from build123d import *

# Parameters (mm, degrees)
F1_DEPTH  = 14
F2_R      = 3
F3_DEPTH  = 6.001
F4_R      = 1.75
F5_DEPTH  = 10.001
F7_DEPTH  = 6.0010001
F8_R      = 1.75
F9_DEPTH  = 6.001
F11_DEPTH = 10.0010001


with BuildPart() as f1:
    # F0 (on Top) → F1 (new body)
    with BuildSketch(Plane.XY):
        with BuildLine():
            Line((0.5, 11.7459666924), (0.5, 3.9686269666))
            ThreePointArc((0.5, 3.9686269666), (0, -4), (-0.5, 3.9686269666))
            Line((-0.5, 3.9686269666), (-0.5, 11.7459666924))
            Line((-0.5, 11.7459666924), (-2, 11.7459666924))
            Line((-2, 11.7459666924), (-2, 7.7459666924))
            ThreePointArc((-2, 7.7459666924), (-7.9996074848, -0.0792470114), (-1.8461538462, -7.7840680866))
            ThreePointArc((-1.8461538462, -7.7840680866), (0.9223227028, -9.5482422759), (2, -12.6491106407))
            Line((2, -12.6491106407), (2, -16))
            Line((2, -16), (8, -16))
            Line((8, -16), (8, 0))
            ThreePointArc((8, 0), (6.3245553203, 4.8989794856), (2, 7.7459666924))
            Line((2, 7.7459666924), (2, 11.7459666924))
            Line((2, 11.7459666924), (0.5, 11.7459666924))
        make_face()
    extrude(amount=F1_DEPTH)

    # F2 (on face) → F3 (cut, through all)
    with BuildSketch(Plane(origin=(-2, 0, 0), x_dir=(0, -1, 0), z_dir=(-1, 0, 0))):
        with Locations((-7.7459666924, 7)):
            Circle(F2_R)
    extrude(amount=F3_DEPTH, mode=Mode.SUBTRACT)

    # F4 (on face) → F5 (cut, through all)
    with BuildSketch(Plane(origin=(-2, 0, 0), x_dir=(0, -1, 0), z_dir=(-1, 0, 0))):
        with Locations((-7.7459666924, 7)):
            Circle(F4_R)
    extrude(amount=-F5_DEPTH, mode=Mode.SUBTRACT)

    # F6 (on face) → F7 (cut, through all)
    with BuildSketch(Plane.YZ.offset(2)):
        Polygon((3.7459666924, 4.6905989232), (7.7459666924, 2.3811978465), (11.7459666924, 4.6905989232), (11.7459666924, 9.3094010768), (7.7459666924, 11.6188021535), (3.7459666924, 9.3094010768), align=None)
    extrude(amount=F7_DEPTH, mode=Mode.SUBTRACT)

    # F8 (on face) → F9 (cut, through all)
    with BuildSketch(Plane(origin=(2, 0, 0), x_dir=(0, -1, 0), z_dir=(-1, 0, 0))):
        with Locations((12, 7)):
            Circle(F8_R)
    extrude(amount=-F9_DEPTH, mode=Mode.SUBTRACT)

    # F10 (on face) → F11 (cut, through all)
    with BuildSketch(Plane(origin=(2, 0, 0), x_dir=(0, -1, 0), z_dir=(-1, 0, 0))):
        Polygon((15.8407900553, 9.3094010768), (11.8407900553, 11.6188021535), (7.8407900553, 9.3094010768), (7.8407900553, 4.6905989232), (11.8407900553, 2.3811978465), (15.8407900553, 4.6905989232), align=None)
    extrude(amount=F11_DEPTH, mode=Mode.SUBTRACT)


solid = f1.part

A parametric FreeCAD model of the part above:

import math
import FreeCAD as App
import Part
import Sketcher
Q = App.Units.Quantity

doc = App.newDocument("Part")
body = doc.addObject("PartDesign::Body", "Body")

# Sketch on XY plane
sketch1 = body.newObject("Sketcher::SketchObject", "Sketch")
sketch1.AttachmentSupport = (doc.getObject("XY_Plane"), [""])
sketch1.MapMode = "FlatFace"
sketch1.addGeometry([
    Part.LineSegment(App.Vector(0.5, 11.7, 0), App.Vector(0.5, 4, 0)),  # 0
    Part.ArcOfCircle(Part.Circle(App.Vector(0, 0, 0), App.Vector(0, 0, 1), 4), math.radians(97), math.radians(443)),  # 1
    Part.LineSegment(App.Vector(-0.5, 4, 0), App.Vector(-0.5, 11.7, 0)),  # 2
    Part.LineSegment(App.Vector(-0.5, 11.7, 0), App.Vector(-2, 11.7, 0)),  # 3
    Part.LineSegment(App.Vector(-2, 11.7, 0), App.Vector(-2, 7.7, 0)),  # 4
    Part.ArcOfCircle(Part.Circle(App.Vector(0, 0, 0), App.Vector(0, 0, 1), 8), math.radians(104), math.radians(257)),  # 5
    Part.ArcOfCircle(Part.Circle(App.Vector(-3, -12.6, 0), App.Vector(0, 0, 1), 5), math.radians(0), math.radians(77)),  # 6
    Part.LineSegment(App.Vector(2, -12.6, 0), App.Vector(2, -16, 0)),  # 7
    Part.LineSegment(App.Vector(2, -16, 0), App.Vector(8, -16, 0)),  # 8
    Part.LineSegment(App.Vector(8, -16, 0), App.Vector(8, 0, 0)),  # 9
    Part.ArcOfCircle(Part.Circle(App.Vector(0, 0, 0), App.Vector(0, 0, 1), 8), math.radians(0), math.radians(76)),  # 10
    Part.LineSegment(App.Vector(2, 7.7, 0), App.Vector(2, 11.7, 0)),  # 11
    Part.LineSegment(App.Vector(2, 11.7, 0), App.Vector(0.5, 11.7, 0)),  # 12
], False)
sketch1.addConstraint([
    Sketcher.Constraint("Coincident", 0, 2, 1, 2),
    Sketcher.Constraint("Coincident", 1, 1, 2, 1),
    Sketcher.Constraint("Coincident", 2, 2, 3, 1),
    Sketcher.Constraint("Coincident", 3, 2, 4, 1),
    Sketcher.Constraint("Coincident", 4, 2, 5, 1),
    Sketcher.Constraint("Tangent", 5, 2, 6, 2),
    Sketcher.Constraint("Tangent", 6, 1, 7, 1),
    Sketcher.Constraint("Coincident", 7, 2, 8, 1),
    Sketcher.Constraint("Coincident", 8, 2, 9, 1),
    Sketcher.Constraint("Tangent", 9, 2, 10, 1),
    Sketcher.Constraint("Coincident", 10, 2, 11, 1),
    Sketcher.Constraint("Coincident", 11, 2, 12, 1),
    Sketcher.Constraint("Coincident", 12, 2, 0, 1),
    Sketcher.Constraint("Vertical", 0),
    Sketcher.Constraint("Vertical", 2),
    Sketcher.Constraint("Horizontal", 3),
    Sketcher.Constraint("Vertical", 4),
    Sketcher.Constraint("Vertical", 7),
    Sketcher.Constraint("Horizontal", 8),
    Sketcher.Constraint("Vertical", 9),
    Sketcher.Constraint("Vertical", 11),
    Sketcher.Constraint("Horizontal", 12),
    Sketcher.Constraint("Coincident", 1, 3, -1, 1),
    Sketcher.Constraint("Coincident", 5, 3, -1, 1),
    Sketcher.Constraint("Coincident", 10, 3, -1, 1),
    Sketcher.Constraint("Equal", 5, 10),
    Sketcher.Constraint("Symmetric", 3, 2, 11, 2, -2),
    Sketcher.Constraint("Horizontal", 0, 2, 1, 1),
    Sketcher.Constraint("Vertical", 7, 2, 10, 2),
    Sketcher.Constraint("Radius", 1, Q("4 mm")),
    Sketcher.Constraint("Radius", 5, Q("8 mm")),
    Sketcher.Constraint("Radius", 6, Q("5 mm")),
    Sketcher.Constraint("DistanceX", 8, 1, 8, 2, Q("6 mm")),
    Sketcher.Constraint("DistanceY", 4, 2, 4, 1, Q("4 mm")),
    Sketcher.Constraint("DistanceY", 9, 1, 9, 2, Q("16 mm")),
    Sketcher.Constraint("DistanceX", 3, 2, 3, 1, Q("1.5 mm")),
])
pad1 = body.newObject("PartDesign::Pad", "Pad")
pad1.Profile = sketch1
pad1.Length = 14

# Sketch on YZ plane
sketch2 = body.newObject("Sketcher::SketchObject", "Sketch001")
sketch2.AttachmentSupport = (doc.getObject("YZ_Plane"), [""])
sketch2.MapMode = "FlatFace"
sketch2.AttachmentOffset = App.Placement(App.Vector(0, 0, -2), App.Rotation())
sketch2.addGeometry(Part.Circle(App.Vector(7.7, 7, 0), App.Vector(0, 0, 1), 3), False)
sketch2.addConstraint([
    Sketcher.Constraint("Diameter", 0, Q("6 mm")),
    Sketcher.Constraint("DistanceY", -1, 1, 0, 3, Q("7 mm")),
    Sketcher.Constraint("DistanceX", -1, 1, 0, 3, Q("7.745967 mm")),
])
pocket1 = body.newObject("PartDesign::Pocket", "Pocket")
pocket1.Profile = sketch2
pocket1.Type = "ThroughAll"

# Sketch on YZ plane
sketch3 = body.newObject("Sketcher::SketchObject", "Sketch002")
sketch3.AttachmentSupport = (doc.getObject("YZ_Plane"), [""])
sketch3.MapMode = "FlatFace"
sketch3.AttachmentOffset = App.Placement(App.Vector(0, 0, -2), App.Rotation())
sketch3.addGeometry(Part.Circle(App.Vector(7.7, 7, 0), App.Vector(0, 0, 1), 1.8), False)
sketch3.addConstraint([
    Sketcher.Constraint("Diameter", 0, Q("3.5 mm")),
    Sketcher.Constraint("DistanceY", -1, 1, 0, 3, Q("7 mm")),
    Sketcher.Constraint("DistanceX", -1, 1, 0, 3, Q("7.745967 mm")),
])
pocket2 = body.newObject("PartDesign::Pocket", "Pocket001")
pocket2.Profile = sketch3
pocket2.Type = "ThroughAll"
pocket2.Reversed = True

# Sketch on YZ plane
sketch4 = body.newObject("Sketcher::SketchObject", "Sketch003")
sketch4.AttachmentSupport = (doc.getObject("YZ_Plane"), [""])
sketch4.MapMode = "FlatFace"
sketch4.AttachmentOffset = App.Placement(App.Vector(0, 0, 2), App.Rotation())
sketch4.addGeometry([
    Part.LineSegment(App.Vector(3.7, 4.7, 0), App.Vector(7.7, 2.4, 0)),  # 0
    Part.LineSegment(App.Vector(7.7, 2.4, 0), App.Vector(11.7, 4.7, 0)),  # 1
    Part.LineSegment(App.Vector(11.7, 4.7, 0), App.Vector(11.7, 9.3, 0)),  # 2
    Part.LineSegment(App.Vector(11.7, 9.3, 0), App.Vector(7.7, 11.6, 0)),  # 3
    Part.LineSegment(App.Vector(7.7, 11.6, 0), App.Vector(3.7, 9.3, 0)),  # 4
    Part.LineSegment(App.Vector(3.7, 9.3, 0), App.Vector(3.7, 4.7, 0)),  # 5
], False)
sketch4.addConstraint([
    Sketcher.Constraint("Coincident", 0, 2, 1, 1),
    Sketcher.Constraint("Coincident", 1, 2, 2, 1),
    Sketcher.Constraint("Coincident", 2, 2, 3, 1),
    Sketcher.Constraint("Coincident", 3, 2, 4, 1),
    Sketcher.Constraint("Coincident", 4, 2, 5, 1),
    Sketcher.Constraint("Coincident", 5, 2, 0, 1),
    Sketcher.Constraint("Vertical", 2),
    Sketcher.Constraint("Vertical", 5),
    Sketcher.Constraint("Parallel", 0, 3),
    Sketcher.Constraint("Parallel", 1, 4),
    Sketcher.Constraint("Horizontal", 2, 2, 4, 2),
    Sketcher.Constraint("Horizontal", 1, 2, 5, 2),
    Sketcher.Constraint("Vertical", 0, 2, 3, 2),
    Sketcher.Constraint("Angle", 0, Q("-30 deg")),
    Sketcher.Constraint("DistanceX", 0, 2, 1, 2, Q("4 mm")),
    Sketcher.Constraint("DistanceY", -1, 1, 1, 2, Q("4.690599 mm")),
    Sketcher.Constraint("DistanceY", -1, 1, 2, 2, Q("9.309401 mm")),
    Sketcher.Constraint("DistanceX", -1, 1, 0, 2, Q("7.745967 mm")),
])
pocket3 = body.newObject("PartDesign::Pocket", "Pocket002")
pocket3.Profile = sketch4
pocket3.Type = "ThroughAll"
pocket3.Reversed = True

# Sketch on YZ plane
sketch5 = body.newObject("Sketcher::SketchObject", "Sketch004")
sketch5.AttachmentSupport = (doc.getObject("YZ_Plane"), [""])
sketch5.MapMode = "FlatFace"
sketch5.AttachmentOffset = App.Placement(App.Vector(0, 0, 2), App.Rotation())
sketch5.addGeometry(Part.Circle(App.Vector(-12, 7, 0), App.Vector(0, 0, 1), 1.8), False)
sketch5.addConstraint([
    Sketcher.Constraint("Diameter", 0, Q("3.5 mm")),
    Sketcher.Constraint("DistanceX", 0, 3, -1, 1, Q("12 mm")),
    Sketcher.Constraint("DistanceY", -1, 1, 0, 3, Q("7 mm")),
])
pocket4 = body.newObject("PartDesign::Pocket", "Pocket003")
pocket4.Profile = sketch5
pocket4.Type = "ThroughAll"
pocket4.Reversed = True

# Sketch on YZ plane
sketch6 = body.newObject("Sketcher::SketchObject", "Sketch005")
sketch6.AttachmentSupport = (doc.getObject("YZ_Plane"), [""])
sketch6.MapMode = "FlatFace"
sketch6.AttachmentOffset = App.Placement(App.Vector(0, 0, 2), App.Rotation())
sketch6.addGeometry([
    Part.LineSegment(App.Vector(-15.8, 9.3, 0), App.Vector(-11.8, 11.6, 0)),  # 0
    Part.LineSegment(App.Vector(-11.8, 11.6, 0), App.Vector(-7.8, 9.3, 0)),  # 1
    Part.LineSegment(App.Vector(-7.8, 9.3, 0), App.Vector(-7.8, 4.7, 0)),  # 2
    Part.LineSegment(App.Vector(-7.8, 4.7, 0), App.Vector(-11.8, 2.4, 0)),  # 3
    Part.LineSegment(App.Vector(-11.8, 2.4, 0), App.Vector(-15.8, 4.7, 0)),  # 4
    Part.LineSegment(App.Vector(-15.8, 4.7, 0), App.Vector(-15.8, 9.3, 0)),  # 5
], False)
sketch6.addConstraint([
    Sketcher.Constraint("Coincident", 0, 2, 1, 1),
    Sketcher.Constraint("Coincident", 1, 2, 2, 1),
    Sketcher.Constraint("Coincident", 2, 2, 3, 1),
    Sketcher.Constraint("Coincident", 3, 2, 4, 1),
    Sketcher.Constraint("Coincident", 4, 2, 5, 1),
    Sketcher.Constraint("Coincident", 5, 2, 0, 1),
    Sketcher.Constraint("Vertical", 2),
    Sketcher.Constraint("Vertical", 5),
    Sketcher.Constraint("Parallel", 0, 3),
    Sketcher.Constraint("Parallel", 1, 4),
    Sketcher.Constraint("Horizontal", 2, 2, 4, 2),
    Sketcher.Constraint("Horizontal", 1, 2, 5, 2),
    Sketcher.Constraint("Vertical", 0, 2, 3, 2),
    Sketcher.Constraint("Angle", 0, Q("30 deg")),
    Sketcher.Constraint("DistanceX", 0, 2, 1, 2, Q("4 mm")),
    Sketcher.Constraint("DistanceY", -1, 1, 1, 2, Q("9.309401 mm")),
    Sketcher.Constraint("DistanceY", -1, 1, 2, 2, Q("4.690599 mm")),
    Sketcher.Constraint("DistanceX", 0, 2, -1, 1, Q("11.84079 mm")),
])
pocket5 = body.newObject("PartDesign::Pocket", "Pocket004")
pocket5.Profile = sketch6
pocket5.Type = "ThroughAll"

doc.recompute()
